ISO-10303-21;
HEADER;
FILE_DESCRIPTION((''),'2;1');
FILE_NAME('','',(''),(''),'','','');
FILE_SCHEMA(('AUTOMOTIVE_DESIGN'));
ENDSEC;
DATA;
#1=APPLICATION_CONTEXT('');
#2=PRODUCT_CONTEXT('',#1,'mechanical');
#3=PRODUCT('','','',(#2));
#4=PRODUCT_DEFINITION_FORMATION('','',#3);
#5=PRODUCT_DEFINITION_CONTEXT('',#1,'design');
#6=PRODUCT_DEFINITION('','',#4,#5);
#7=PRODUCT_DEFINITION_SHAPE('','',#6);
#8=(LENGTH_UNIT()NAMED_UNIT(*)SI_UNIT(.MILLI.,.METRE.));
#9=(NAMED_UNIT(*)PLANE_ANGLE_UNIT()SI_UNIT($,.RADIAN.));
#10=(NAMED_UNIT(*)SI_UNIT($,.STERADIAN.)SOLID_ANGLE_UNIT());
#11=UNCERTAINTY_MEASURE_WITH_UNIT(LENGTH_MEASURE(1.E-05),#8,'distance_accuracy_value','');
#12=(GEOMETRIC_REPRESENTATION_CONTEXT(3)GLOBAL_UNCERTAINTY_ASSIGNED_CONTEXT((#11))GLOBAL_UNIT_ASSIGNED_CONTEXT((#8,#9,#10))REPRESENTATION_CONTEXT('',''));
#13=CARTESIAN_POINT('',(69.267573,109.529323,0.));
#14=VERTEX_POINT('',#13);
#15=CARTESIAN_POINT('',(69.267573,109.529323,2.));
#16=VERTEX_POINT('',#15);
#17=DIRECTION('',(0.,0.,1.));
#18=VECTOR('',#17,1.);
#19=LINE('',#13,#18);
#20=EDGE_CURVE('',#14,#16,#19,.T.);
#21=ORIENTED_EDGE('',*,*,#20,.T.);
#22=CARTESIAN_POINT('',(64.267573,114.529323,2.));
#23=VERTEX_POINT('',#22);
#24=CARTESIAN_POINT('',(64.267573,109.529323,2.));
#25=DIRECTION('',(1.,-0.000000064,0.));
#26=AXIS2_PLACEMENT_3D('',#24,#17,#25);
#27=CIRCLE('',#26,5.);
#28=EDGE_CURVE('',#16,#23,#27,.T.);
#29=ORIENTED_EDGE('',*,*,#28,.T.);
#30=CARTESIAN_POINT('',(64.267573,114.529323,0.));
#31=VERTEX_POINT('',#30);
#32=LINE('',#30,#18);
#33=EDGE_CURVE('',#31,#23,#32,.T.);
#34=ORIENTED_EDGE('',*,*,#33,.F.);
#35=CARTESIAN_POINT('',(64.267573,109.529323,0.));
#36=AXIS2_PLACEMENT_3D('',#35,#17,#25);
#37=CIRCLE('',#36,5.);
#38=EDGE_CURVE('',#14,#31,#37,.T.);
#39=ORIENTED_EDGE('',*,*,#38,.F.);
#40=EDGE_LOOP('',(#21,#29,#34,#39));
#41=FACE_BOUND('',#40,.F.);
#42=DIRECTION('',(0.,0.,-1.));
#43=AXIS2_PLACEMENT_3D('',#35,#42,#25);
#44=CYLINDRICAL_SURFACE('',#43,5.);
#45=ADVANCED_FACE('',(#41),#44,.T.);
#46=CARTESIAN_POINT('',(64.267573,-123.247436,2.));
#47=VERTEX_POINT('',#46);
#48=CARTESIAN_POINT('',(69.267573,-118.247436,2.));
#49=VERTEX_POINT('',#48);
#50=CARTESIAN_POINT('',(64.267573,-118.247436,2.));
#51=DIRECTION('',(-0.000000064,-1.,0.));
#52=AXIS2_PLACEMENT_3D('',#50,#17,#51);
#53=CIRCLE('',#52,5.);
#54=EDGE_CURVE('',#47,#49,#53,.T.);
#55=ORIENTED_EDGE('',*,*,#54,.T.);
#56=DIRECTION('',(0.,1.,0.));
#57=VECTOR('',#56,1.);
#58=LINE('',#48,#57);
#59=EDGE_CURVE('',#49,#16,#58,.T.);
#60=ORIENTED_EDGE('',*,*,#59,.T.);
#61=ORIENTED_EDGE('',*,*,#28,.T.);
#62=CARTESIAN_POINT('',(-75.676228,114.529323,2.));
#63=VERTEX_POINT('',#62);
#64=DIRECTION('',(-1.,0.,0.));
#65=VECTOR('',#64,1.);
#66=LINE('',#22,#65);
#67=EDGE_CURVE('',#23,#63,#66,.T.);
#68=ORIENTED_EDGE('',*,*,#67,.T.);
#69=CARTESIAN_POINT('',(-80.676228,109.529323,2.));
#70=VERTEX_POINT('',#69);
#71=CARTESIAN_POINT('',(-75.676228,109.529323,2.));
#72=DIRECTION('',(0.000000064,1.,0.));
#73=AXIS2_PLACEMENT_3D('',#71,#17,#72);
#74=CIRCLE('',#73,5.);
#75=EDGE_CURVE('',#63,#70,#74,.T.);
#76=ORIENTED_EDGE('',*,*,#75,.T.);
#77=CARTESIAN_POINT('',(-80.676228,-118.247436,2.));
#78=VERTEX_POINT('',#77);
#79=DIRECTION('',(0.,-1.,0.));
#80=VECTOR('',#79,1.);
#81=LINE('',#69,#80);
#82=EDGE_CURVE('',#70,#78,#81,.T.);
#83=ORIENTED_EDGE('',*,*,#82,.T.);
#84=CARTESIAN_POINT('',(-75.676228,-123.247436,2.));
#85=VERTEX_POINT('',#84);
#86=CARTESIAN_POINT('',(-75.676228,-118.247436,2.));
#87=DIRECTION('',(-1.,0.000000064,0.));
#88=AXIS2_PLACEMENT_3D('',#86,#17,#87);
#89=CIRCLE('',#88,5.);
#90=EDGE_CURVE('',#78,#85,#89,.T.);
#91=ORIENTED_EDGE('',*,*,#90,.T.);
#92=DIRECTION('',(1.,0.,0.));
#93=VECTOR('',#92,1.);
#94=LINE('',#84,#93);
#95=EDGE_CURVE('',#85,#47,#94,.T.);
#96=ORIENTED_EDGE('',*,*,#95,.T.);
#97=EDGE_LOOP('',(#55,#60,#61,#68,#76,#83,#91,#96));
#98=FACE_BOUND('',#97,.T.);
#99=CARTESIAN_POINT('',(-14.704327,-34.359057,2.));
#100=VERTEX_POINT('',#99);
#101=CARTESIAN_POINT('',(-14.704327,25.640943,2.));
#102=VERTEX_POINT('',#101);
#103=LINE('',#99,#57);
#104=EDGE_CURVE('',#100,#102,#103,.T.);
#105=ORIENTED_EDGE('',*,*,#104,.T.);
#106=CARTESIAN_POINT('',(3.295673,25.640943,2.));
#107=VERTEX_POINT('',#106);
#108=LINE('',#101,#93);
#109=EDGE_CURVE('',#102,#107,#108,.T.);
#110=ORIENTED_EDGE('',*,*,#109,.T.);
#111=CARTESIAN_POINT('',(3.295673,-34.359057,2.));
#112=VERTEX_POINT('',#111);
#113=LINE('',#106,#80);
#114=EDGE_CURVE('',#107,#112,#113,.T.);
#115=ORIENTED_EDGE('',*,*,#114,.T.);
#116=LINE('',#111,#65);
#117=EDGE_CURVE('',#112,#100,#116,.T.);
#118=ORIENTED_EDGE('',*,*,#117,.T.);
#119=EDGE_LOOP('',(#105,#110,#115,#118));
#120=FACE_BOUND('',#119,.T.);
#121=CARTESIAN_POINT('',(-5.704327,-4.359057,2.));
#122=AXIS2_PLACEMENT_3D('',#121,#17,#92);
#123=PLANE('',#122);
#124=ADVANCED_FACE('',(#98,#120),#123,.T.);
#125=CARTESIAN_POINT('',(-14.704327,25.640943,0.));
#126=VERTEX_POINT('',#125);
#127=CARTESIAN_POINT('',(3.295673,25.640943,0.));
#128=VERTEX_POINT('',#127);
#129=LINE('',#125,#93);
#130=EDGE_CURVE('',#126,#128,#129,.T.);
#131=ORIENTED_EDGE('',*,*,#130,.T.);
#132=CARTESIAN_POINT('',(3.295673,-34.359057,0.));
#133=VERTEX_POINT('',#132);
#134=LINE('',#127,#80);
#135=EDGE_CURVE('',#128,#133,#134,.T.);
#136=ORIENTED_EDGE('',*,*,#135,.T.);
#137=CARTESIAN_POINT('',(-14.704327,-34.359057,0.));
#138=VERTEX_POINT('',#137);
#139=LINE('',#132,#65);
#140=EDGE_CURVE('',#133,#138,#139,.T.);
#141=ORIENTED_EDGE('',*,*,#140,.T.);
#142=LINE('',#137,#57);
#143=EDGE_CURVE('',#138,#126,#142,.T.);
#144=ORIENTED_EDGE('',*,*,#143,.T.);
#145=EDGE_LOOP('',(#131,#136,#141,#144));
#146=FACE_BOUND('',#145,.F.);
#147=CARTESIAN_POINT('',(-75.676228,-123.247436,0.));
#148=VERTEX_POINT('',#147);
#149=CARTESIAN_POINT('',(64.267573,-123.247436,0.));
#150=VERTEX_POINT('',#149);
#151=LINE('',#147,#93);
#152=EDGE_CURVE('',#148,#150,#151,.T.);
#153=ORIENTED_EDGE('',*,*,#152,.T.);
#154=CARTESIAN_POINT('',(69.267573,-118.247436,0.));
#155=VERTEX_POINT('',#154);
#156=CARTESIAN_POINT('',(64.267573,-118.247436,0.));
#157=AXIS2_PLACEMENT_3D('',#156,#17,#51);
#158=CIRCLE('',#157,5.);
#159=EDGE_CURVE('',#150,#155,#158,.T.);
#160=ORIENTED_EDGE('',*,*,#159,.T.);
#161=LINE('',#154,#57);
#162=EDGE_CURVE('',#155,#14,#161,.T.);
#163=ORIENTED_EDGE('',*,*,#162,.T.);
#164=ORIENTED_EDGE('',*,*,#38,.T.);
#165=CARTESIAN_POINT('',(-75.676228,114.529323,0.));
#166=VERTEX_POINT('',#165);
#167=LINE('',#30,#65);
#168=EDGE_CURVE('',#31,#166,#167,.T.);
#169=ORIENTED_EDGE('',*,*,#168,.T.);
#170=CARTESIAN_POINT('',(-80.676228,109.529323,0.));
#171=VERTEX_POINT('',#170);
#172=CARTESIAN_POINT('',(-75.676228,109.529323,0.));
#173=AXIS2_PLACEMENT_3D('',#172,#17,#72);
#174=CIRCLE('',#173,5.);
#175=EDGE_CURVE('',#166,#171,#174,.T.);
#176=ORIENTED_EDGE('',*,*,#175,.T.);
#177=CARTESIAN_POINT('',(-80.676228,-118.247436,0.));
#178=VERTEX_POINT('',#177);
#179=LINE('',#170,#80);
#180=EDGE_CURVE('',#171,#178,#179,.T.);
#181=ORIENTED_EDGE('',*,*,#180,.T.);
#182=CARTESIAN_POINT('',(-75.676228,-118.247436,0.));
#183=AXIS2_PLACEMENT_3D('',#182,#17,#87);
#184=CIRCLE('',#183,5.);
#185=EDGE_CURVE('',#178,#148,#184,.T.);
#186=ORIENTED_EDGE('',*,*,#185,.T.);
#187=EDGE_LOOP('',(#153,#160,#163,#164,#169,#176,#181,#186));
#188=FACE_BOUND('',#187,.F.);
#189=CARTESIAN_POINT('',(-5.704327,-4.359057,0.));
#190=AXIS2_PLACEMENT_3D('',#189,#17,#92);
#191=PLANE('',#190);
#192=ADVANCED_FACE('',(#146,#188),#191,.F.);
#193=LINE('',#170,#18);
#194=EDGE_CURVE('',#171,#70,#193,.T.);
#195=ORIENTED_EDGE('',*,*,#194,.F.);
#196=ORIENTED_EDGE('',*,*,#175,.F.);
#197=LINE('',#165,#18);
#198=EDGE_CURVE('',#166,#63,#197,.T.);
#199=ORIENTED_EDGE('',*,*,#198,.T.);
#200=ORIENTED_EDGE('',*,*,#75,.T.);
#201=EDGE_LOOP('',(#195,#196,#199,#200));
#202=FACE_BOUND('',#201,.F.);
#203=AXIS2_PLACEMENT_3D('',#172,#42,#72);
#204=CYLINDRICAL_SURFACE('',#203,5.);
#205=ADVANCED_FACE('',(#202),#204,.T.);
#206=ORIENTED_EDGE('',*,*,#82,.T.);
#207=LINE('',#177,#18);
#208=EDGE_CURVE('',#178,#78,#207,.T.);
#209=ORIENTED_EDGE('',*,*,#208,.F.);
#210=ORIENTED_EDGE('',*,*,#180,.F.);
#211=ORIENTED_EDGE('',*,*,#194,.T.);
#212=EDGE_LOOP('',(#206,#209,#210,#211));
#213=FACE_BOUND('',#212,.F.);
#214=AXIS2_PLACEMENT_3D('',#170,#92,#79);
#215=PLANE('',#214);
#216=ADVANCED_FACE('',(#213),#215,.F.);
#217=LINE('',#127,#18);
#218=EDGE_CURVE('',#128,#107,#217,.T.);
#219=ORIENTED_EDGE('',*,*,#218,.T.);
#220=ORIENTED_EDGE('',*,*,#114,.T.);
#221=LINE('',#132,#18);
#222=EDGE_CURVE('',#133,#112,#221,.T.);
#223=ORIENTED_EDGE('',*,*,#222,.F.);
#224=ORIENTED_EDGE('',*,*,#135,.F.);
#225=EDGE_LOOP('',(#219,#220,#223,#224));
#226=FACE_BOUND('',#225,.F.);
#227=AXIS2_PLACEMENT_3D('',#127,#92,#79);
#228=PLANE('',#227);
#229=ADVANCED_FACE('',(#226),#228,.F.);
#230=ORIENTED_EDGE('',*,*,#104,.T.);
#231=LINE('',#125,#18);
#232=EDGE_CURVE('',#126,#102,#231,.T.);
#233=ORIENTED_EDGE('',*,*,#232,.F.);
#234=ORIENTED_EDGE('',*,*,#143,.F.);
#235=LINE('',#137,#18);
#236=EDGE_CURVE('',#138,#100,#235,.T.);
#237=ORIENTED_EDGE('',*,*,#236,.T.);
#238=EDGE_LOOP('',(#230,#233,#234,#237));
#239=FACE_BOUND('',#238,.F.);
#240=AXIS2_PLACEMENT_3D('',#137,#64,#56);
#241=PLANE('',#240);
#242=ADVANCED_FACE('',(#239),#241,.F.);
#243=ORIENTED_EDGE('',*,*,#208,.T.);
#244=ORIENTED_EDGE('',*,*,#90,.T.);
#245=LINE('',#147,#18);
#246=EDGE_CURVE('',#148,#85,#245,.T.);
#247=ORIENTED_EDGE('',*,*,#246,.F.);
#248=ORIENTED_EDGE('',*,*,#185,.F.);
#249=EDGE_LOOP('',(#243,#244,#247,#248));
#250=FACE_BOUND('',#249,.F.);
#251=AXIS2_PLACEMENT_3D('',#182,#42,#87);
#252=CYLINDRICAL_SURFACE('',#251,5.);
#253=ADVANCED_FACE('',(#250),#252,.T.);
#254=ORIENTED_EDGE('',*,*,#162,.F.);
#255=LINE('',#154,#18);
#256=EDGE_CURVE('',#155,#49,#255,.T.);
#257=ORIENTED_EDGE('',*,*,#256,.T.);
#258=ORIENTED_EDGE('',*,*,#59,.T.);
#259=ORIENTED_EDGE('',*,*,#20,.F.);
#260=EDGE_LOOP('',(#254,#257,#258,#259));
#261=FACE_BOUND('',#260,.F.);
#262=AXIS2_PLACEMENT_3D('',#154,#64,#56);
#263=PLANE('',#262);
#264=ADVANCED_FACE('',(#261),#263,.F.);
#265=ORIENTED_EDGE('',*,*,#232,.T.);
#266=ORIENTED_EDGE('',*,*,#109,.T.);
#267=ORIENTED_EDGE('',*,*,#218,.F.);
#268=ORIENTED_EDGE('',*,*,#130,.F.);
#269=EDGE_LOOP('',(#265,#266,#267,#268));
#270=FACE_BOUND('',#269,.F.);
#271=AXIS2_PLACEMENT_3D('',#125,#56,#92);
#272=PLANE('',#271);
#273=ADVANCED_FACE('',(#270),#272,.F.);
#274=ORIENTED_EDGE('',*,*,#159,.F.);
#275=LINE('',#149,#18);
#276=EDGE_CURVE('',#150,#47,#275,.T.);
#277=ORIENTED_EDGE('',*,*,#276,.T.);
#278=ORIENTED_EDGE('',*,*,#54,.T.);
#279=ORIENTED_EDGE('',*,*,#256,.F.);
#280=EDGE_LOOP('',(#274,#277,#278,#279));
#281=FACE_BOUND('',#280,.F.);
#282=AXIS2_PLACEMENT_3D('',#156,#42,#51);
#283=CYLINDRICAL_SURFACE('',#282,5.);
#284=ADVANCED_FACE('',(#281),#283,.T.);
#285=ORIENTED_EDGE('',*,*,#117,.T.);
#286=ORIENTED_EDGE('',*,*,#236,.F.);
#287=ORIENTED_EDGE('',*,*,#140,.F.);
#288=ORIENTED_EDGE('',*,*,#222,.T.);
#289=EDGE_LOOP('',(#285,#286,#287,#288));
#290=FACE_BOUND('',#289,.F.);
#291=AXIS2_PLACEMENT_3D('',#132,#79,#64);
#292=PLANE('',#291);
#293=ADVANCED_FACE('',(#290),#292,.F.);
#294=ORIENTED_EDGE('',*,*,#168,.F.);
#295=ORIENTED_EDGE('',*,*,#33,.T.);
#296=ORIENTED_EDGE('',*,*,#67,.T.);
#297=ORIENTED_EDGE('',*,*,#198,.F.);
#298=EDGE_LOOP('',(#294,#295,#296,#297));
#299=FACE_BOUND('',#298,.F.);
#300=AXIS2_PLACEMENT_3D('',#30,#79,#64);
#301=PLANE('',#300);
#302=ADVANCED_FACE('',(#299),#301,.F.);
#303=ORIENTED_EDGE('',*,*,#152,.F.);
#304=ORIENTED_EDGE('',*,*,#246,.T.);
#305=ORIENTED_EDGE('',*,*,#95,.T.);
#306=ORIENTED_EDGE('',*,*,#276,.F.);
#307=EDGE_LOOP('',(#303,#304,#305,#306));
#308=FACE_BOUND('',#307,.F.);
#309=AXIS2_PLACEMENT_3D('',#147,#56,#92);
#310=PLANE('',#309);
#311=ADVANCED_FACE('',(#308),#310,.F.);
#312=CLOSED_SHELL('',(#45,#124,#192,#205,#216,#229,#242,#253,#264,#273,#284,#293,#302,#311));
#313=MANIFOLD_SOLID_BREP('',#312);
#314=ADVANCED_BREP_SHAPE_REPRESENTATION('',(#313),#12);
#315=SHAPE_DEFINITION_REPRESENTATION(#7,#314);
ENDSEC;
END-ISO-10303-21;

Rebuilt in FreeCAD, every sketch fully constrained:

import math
import FreeCAD as App
import Part
import Sketcher
Q = App.Units.Quantity


def add_polygon(sketch, points):
    """Adds a closed chain of lines whose ends are joined by coincident constraints."""
    first, n = sketch.GeometryCount, len(points)
    for a, b in zip(points, points[1:] + points[:1]):
        sketch.addGeometry(Part.LineSegment(App.Vector(*a, 0), App.Vector(*b, 0)), False)
    for i in range(n):
        sketch.addConstraint(Sketcher.Constraint("Coincident", first + i, 2, first + (i + 1) % n, 1))

doc = App.newDocument("Part")
body = doc.addObject("PartDesign::Body", "Body")

# Sketch on XY plane
sketch1 = body.newObject("Sketcher::SketchObject", "Sketch")
sketch1.AttachmentSupport = (doc.getObject("XY_Plane"), [""])
sketch1.MapMode = "FlatFace"
sketch1.addGeometry(Part.ArcOfCircle(Part.Circle(App.Vector(-75.7, 109.5, 0), App.Vector(0, 0, 1), 5), math.radians(90), math.radians(180)), False)  # 0
sketch1.addGeometry(Part.LineSegment(App.Vector(-80.7, 109.5, 0), App.Vector(-80.7, -118.2, 0)), False)  # 1
sketch1.addGeometry(Part.ArcOfCircle(Part.Circle(App.Vector(-75.7, -118.2, 0), App.Vector(0, 0, 1), 5), math.radians(180), math.radians(270)), False)  # 2
sketch1.addGeometry(Part.LineSegment(App.Vector(-75.7, -123.2, 0), App.Vector(64.3, -123.2, 0)), False)  # 3
sketch1.addGeometry(Part.ArcOfCircle(Part.Circle(App.Vector(64.3, -118.2, 0), App.Vector(0, 0, 1), 5), math.radians(-90), math.radians(0)), False)  # 4
sketch1.addGeometry(Part.LineSegment(App.Vector(69.3, -118.2, 0), App.Vector(69.3, 109.5, 0)), False)  # 5
sketch1.addGeometry(Part.ArcOfCircle(Part.Circle(App.Vector(64.3, 109.5, 0), App.Vector(0, 0, 1), 5), math.radians(0), math.radians(90)), False)  # 6
sketch1.addGeometry(Part.LineSegment(App.Vector(64.3, 114.5, 0), App.Vector(-75.7, 114.5, 0)), False)  # 7
add_polygon(sketch1, [(-14.7, -34.4), (-14.7, 25.6), (3.3, 25.6), (3.3, -34.4)])  # lines 8-11
sketch1.addConstraint(Sketcher.Constraint("Tangent", 0, 2, 1, 1))
sketch1.addConstraint(Sketcher.Constraint("Tangent", 1, 2, 2, 1))
sketch1.addConstraint(Sketcher.Constraint("Tangent", 2, 2, 3, 1))
sketch1.addConstraint(Sketcher.Constraint("Tangent", 3, 2, 4, 1))
sketch1.addConstraint(Sketcher.Constraint("Tangent", 4, 2, 5, 1))
sketch1.addConstraint(Sketcher.Constraint("Tangent", 5, 2, 6, 1))
sketch1.addConstraint(Sketcher.Constraint("Tangent", 6, 2, 7, 1))
sketch1.addConstraint(Sketcher.Constraint("Tangent", 7, 2, 0, 1))
sketch1.addConstraint(Sketcher.Constraint("Vertical", 1))
sketch1.addConstraint(Sketcher.Constraint("Horizontal", 3))
sketch1.addConstraint(Sketcher.Constraint("Vertical", 5))
sketch1.addConstraint(Sketcher.Constraint("Horizontal", 7))
sketch1.addConstraint(Sketcher.Constraint("Vertical", 8))
sketch1.addConstraint(Sketcher.Constraint("Horizontal", 9))
sketch1.addConstraint(Sketcher.Constraint("Vertical", 10))
sketch1.addConstraint(Sketcher.Constraint("Horizontal", 11))
sketch1.addConstraint(Sketcher.Constraint("Equal", 0, 2))
sketch1.addConstraint(Sketcher.Constraint("Equal", 2, 4))
sketch1.addConstraint(Sketcher.Constraint("Equal", 4, 6))
sketch1.addConstraint(Sketcher.Constraint("Radius", 0, Q("5 mm")))
sketch1.addConstraint(Sketcher.Constraint("DistanceX", 9, 1, 9, 2, Q("18 mm")))
sketch1.addConstraint(Sketcher.Constraint("DistanceY", 8, 1, 8, 2, Q("60 mm")))
sketch1.addConstraint(Sketcher.Constraint("DistanceX", 3, 1, 3, 2, Q("139.943801 mm")))
sketch1.addConstraint(Sketcher.Constraint("DistanceY", 1, 2, 1, 1, Q("227.776759 mm")))
sketch1.addConstraint(Sketcher.Constraint("DistanceX", 0, 3, 8, 2, Q("60.971901 mm")))
sketch1.addConstraint(Sketcher.Constraint("DistanceX", 0, 3, -1, 1, Q("75.676228 mm")))
sketch1.addConstraint(Sketcher.Constraint("DistanceY", 8, 2, 0, 3, Q("83.88838 mm")))
sketch1.addConstraint(Sketcher.Constraint("DistanceY", -1, 1, 0, 3, Q("109.529323 mm")))
pad1 = body.newObject("PartDesign::Pad", "Pad")
pad1.Profile = sketch1
pad1.Length = 2

doc.recompute()
